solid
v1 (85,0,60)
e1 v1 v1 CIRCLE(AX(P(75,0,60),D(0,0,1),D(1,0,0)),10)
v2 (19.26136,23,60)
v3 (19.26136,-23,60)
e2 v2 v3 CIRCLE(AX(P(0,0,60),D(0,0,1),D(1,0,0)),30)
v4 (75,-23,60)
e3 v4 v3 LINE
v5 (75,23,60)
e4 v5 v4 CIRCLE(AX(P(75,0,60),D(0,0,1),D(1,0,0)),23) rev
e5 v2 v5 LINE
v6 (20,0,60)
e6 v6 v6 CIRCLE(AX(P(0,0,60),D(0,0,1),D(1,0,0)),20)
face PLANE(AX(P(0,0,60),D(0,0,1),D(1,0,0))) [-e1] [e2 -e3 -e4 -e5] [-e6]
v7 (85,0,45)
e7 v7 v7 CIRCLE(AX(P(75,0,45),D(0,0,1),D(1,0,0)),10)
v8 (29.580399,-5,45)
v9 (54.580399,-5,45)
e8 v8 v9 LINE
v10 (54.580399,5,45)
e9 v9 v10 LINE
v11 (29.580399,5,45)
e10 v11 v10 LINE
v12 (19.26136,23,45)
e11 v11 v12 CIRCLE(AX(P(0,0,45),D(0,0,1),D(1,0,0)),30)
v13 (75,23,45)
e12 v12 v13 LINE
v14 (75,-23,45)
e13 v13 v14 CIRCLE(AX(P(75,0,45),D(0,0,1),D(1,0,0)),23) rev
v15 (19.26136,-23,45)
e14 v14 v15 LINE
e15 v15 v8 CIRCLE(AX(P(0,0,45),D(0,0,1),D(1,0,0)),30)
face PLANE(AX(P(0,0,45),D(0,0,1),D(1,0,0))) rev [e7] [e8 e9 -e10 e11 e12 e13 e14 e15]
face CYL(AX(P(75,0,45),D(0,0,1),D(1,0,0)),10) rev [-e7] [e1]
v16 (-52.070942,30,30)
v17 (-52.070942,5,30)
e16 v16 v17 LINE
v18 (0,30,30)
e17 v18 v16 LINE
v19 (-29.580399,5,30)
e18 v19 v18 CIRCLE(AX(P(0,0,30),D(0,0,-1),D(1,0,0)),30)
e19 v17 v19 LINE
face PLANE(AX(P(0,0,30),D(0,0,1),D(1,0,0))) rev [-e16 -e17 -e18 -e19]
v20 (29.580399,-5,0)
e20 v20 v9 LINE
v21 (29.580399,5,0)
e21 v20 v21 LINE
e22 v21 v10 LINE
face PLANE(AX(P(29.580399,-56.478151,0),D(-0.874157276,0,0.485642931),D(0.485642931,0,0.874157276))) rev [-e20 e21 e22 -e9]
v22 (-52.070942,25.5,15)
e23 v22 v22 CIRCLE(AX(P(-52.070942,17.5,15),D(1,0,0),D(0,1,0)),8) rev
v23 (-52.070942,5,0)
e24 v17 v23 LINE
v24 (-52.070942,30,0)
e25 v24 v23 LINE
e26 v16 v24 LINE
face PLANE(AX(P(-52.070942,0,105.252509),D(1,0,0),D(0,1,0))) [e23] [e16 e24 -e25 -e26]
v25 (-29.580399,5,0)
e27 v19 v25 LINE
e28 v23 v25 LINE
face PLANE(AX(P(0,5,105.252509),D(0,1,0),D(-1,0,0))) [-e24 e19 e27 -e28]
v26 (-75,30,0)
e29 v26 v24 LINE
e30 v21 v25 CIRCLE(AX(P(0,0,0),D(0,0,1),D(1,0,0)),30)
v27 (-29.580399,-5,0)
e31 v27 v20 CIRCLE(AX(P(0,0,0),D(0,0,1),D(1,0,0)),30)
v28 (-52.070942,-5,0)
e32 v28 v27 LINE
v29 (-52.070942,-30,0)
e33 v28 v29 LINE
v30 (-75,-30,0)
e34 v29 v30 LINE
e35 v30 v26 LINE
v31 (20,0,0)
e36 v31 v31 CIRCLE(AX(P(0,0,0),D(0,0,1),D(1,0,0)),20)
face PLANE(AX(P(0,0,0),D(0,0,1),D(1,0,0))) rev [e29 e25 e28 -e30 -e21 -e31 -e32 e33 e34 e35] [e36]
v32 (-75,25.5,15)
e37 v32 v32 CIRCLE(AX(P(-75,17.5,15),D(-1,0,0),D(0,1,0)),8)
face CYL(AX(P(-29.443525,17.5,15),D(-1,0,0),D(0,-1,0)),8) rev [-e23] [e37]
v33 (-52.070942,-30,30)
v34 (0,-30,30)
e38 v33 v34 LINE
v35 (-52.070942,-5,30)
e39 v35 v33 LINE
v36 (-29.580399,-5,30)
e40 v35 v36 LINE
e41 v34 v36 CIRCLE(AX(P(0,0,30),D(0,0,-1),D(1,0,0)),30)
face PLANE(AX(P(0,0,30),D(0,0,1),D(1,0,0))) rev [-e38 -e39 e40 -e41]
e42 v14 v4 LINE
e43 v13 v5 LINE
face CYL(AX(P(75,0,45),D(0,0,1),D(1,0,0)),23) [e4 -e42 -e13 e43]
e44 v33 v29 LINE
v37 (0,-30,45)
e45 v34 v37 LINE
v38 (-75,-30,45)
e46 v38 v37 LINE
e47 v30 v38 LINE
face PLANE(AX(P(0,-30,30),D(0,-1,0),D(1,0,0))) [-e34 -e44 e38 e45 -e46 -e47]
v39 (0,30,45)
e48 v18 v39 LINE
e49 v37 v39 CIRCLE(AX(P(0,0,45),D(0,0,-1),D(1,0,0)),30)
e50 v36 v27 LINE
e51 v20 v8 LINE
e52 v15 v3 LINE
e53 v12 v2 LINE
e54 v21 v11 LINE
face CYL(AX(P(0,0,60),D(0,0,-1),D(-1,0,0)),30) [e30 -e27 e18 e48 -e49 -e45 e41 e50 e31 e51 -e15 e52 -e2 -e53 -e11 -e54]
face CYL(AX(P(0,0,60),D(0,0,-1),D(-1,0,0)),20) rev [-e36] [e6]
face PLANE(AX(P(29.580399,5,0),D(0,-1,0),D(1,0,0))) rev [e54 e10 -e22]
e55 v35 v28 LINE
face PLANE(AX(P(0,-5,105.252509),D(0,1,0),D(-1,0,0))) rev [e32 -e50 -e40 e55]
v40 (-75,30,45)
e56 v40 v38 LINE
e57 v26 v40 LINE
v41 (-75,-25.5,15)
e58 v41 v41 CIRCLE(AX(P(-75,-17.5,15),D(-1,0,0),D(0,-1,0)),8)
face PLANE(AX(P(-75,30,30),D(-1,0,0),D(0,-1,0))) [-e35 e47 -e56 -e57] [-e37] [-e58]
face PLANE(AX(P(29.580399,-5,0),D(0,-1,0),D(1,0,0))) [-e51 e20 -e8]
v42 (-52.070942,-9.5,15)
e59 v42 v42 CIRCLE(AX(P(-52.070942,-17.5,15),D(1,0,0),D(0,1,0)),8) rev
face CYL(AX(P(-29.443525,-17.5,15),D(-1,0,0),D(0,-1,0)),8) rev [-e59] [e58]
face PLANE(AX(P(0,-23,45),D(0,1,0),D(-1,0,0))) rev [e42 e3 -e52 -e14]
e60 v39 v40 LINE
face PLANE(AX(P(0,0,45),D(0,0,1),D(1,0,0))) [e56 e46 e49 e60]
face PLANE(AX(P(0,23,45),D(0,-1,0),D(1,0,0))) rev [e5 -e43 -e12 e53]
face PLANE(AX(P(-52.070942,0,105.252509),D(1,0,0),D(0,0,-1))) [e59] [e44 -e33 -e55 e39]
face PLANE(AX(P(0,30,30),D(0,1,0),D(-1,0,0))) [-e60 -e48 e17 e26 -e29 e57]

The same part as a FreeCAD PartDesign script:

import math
import FreeCAD as App
import Part
import Sketcher
Q = App.Units.Quantity


def add_polygon(sketch, points):
    """Adds a closed chain of lines whose ends are joined by coincident constraints."""
    first, n = sketch.GeometryCount, len(points)
    for a, b in zip(points, points[1:] + points[:1]):
        sketch.addGeometry(Part.LineSegment(App.Vector(*a, 0), App.Vector(*b, 0)), False)
    for i in range(n):
        sketch.addConstraint(Sketcher.Constraint("Coincident", first + i, 2, first + (i + 1) % n, 1))

doc = App.newDocument("Part")
params = doc.addObject("Spreadsheet::Sheet", "Params")
for row, (alias, value) in enumerate([
    ("sketch1_diameter", "60 mm"),
    ("sketch1_diameter2", "40 mm"),
    ("pad1_length", "60 mm"),
    ("sketch2_diameter", "20 mm"),
    ("sketch2_radius", "30 mm"),
    ("sketch2_radius2", "23 mm"),
    ("pad2_length", "15 mm"),
    ("sketch3_radius", "30 mm"),
    ("sketch3_width", "75 mm"),
    ("pad3_length", "15 mm"),
    ("sketch4_radius", "30 mm"),
    ("sketch4_height", "25 mm"),
    ("sketch4_height2", "60 mm"),
    ("pad4_length", "30 mm"),
    ("sketch5_diameter", "16 mm"),
    ("pocket1_length", "22.929058 mm"),
    ("sketch6_radius", "30 mm"),
    ("sketch6_width", "25 mm"),
    ("sketch6_height", "10 mm"),
    ("pad5_length", "45 mm"),
    ("sketch7_width", "25 mm"),
    ("sketch7_height", "45 mm"),
    ("pocket2_length", "10 mm"),
], start=1):
    params.set(f"A{row}", alias)
    params.set(f"B{row}", "=" + value)
    params.setAlias(f"B{row}", alias)

body = doc.addObject("PartDesign::Body", "Body")

# Sketch on XY plane
sketch1 = body.newObject("Sketcher::SketchObject", "Sketch")
sketch1.AttachmentSupport = (doc.getObject("XY_Plane"), [""])
sketch1.MapMode = "FlatFace"
sketch1.addGeometry([
    Part.Circle(App.Vector(0, 0, 0), App.Vector(0, 0, 1), 30),
    Part.Circle(App.Vector(0, 0, 0), App.Vector(0, 0, 1), 20),
], False)
sketch1.addConstraint([
    Sketcher.Constraint("Coincident", 0, 3, -1, 1),
    Sketcher.Constraint("Coincident", 1, 3, -1, 1),
    Sketcher.Constraint("Diameter", 0, Q("60 mm")),
    Sketcher.Constraint("Diameter", 1, Q("40 mm")),
])
sketch1.setExpression("Constraints[2]", "Params.sketch1_diameter")
sketch1.setExpression("Constraints[3]", "Params.sketch1_diameter2")
pad1 = body.newObject("PartDesign::Pad", "Pad")
pad1.Profile = sketch1
pad1.setExpression("Length", "Params.pad1_length")

# Sketch on XY plane
sketch2 = body.newObject("Sketcher::SketchObject", "Sketch001")
sketch2.AttachmentSupport = (doc.getObject("XY_Plane"), [""])
sketch2.MapMode = "FlatFace"
sketch2.AttachmentOffset = App.Placement(App.Vector(0, 0, 45), App.Rotation())
sketch2.addGeometry([
    Part.LineSegment(App.Vector(75, 23, 0), App.Vector(19.26136, 23, 0)),  # 0
    Part.ArcOfCircle(Part.Circle(App.Vector(0, 0, 0), App.Vector(0, 0, 1), 30), math.radians(0), math.radians(50.055495)),  # 1
    Part.ArcOfCircle(Part.Circle(App.Vector(0, 0, 0), App.Vector(0, 0, 1), 30), math.radians(-50.055495), math.radians(0)),  # 2
    Part.LineSegment(App.Vector(19.26136, -23, 0), App.Vector(75, -23, 0)),  # 3
    Part.ArcOfCircle(Part.Circle(App.Vector(75, 0, 0), App.Vector(0, 0, 1), 23), math.radians(-90), math.radians(90)),  # 4
    Part.Circle(App.Vector(75, 0, 0), App.Vector(0, 0, 1), 10),  # 5
], False)
sketch2.addConstraint([
    Sketcher.Constraint("Coincident", 0, 2, 1, 2),
    Sketcher.Constraint("Tangent", 1, 1, 2, 2),
    Sketcher.Constraint("Coincident", 2, 1, 3, 1),
    Sketcher.Constraint("Tangent", 3, 2, 4, 1),
    Sketcher.Constraint("Tangent", 4, 2, 0, 1),
    Sketcher.Constraint("Horizontal", 0),
    Sketcher.Constraint("Horizontal", 3),
    Sketcher.Constraint("Coincident", 1, 3, -1, 1),
    Sketcher.Constraint("Coincident", 5, 3, 4, 3),
    Sketcher.Constraint("Equal", 1, 2),
    Sketcher.Constraint("PointOnObject", 4, 3, -1),
    Sketcher.Constraint("PointOnObject", 1, 1, -1),
    Sketcher.Constraint("Diameter", 5, Q("20 mm")),
    Sketcher.Constraint("Radius", 1, Q("30 mm")),
    Sketcher.Constraint("Radius", 4, Q("23 mm")),
    Sketcher.Constraint("DistanceX", -1, 1, 4, 3, Q("75 mm")),
])
sketch2.setExpression("Constraints[12]", "Params.sketch2_diameter")
sketch2.setExpression("Constraints[13]", "Params.sketch2_radius")
sketch2.setExpression("Constraints[14]", "Params.sketch2_radius2")
pad2 = body.newObject("PartDesign::Pad", "Pad001")
pad2.Profile = sketch2
pad2.setExpression("Length", "Params.pad2_length")

# Sketch on XY plane
sketch3 = body.newObject("Sketcher::SketchObject", "Sketch002")
sketch3.AttachmentSupport = (doc.getObject("XY_Plane"), [""])
sketch3.MapMode = "FlatFace"
sketch3.AttachmentOffset = App.Placement(App.Vector(0, 0, 30), App.Rotation())
sketch3.addGeometry([
    Part.LineSegment(App.Vector(-75, -30, 0), App.Vector(0, -30, 0)),
    Part.ArcOfCircle(Part.Circle(App.Vector(0, 0, 0), App.Vector(0, 0, 1), 30), math.radians(90), math.radians(270)),
    Part.LineSegment(App.Vector(0, 30, 0), App.Vector(-75, 30, 0)),
    Part.LineSegment(App.Vector(-75, 30, 0), App.Vector(-75, -30, 0)),
], False)
sketch3.addConstraint([
    Sketcher.Constraint("Tangent", 0, 2, 1, 2),
    Sketcher.Constraint("Tangent", 1, 1, 2, 1),
    Sketcher.Constraint("Coincident", 2, 2, 3, 1),
    Sketcher.Constraint("Coincident", 3, 2, 0, 1),
    Sketcher.Constraint("Horizontal", 0),
    Sketcher.Constraint("Horizontal", 2),
    Sketcher.Constraint("Vertical", 3),
    Sketcher.Constraint("Coincident", 1, 3, -1, 1),
    Sketcher.Constraint("Radius", 1, Q("30 mm")),
    Sketcher.Constraint("DistanceX", 0, 1, 0, 2, Q("75 mm")),
])
sketch3.setExpression("Constraints[8]", "Params.sketch3_radius")
sketch3.setExpression("Constraints[9]", "Params.sketch3_width")
pad3 = body.newObject("PartDesign::Pad", "Pad002")
pad3.Profile = sketch3
pad3.setExpression("Length", "Params.pad3_length")

# Sketch on XY plane
sketch4 = body.newObject("Sketcher::SketchObject", "Sketch003")
sketch4.AttachmentSupport = (doc.getObject("XY_Plane"), [""])
sketch4.MapMode = "FlatFace"
sketch4.addGeometry([
    Part.LineSegment(App.Vector(-75, 30, 0), App.Vector(-52.070942, 30, 0)),  # 0
    Part.LineSegment(App.Vector(-52.070942, 30, 0), App.Vector(-52.070942, 5, 0)),  # 1
    Part.LineSegment(App.Vector(-52.070942, 5, 0), App.Vector(-29.580399, 5, 0)),  # 2
    Part.ArcOfCircle(Part.Circle(App.Vector(0, 0, 0), App.Vector(0, 0, 1), 30), math.radians(170.405932), math.radians(180)),  # 3
    Part.ArcOfCircle(Part.Circle(App.Vector(0, 0, 0), App.Vector(0, 0, 1), 30), math.radians(180), math.radians(189.594068)),  # 4
    Part.LineSegment(App.Vector(-29.580399, -5, 0), App.Vector(-52.070942, -5, 0)),  # 5
    Part.LineSegment(App.Vector(-52.070942, -5, 0), App.Vector(-52.070942, -30, 0)),  # 6
    Part.LineSegment(App.Vector(-52.070942, -30, 0), App.Vector(-75, -30, 0)),  # 7
    Part.LineSegment(App.Vector(-75, -30, 0), App.Vector(-75, 30, 0)),  # 8
], False)
sketch4.addConstraint([
    Sketcher.Constraint("Coincident", 0, 2, 1, 1),
    Sketcher.Constraint("Coincident", 1, 2, 2, 1),
    Sketcher.Constraint("Coincident", 2, 2, 3, 1),
    Sketcher.Constraint("Tangent", 3, 2, 4, 1),
    Sketcher.Constraint("Coincident", 4, 2, 5, 1),
    Sketcher.Constraint("Coincident", 5, 2, 6, 1),
    Sketcher.Constraint("Coincident", 6, 2, 7, 1),
    Sketcher.Constraint("Coincident", 7, 2, 8, 1),
    Sketcher.Constraint("Coincident", 8, 2, 0, 1),
    Sketcher.Constraint("Horizontal", 0),
    Sketcher.Constraint("Vertical", 1),
    Sketcher.Constraint("Horizontal", 2),
    Sketcher.Constraint("Horizontal", 5),
    Sketcher.Constraint("Vertical", 6),
    Sketcher.Constraint("Horizontal", 7),
    Sketcher.Constraint("Vertical", 8),
    Sketcher.Constraint("Coincident", 3, 3, -1, 1),
    Sketcher.Constraint("Equal", 3, 4),
    Sketcher.Constraint("Symmetric", 1, 2, 5, 2, -1),
    Sketcher.Constraint("PointOnObject", 3, 2, -1),
    Sketcher.Constraint("Equal", 1, 6),
    Sketcher.Constraint("Radius", 3, Q("30 mm")),
    Sketcher.Constraint("DistanceY", 1, 2, 1, 1, Q("25 mm")),
    Sketcher.Constraint("DistanceY", 8, 1, 8, 2, Q("60 mm")),
    Sketcher.Constraint("DistanceX", 7, 2, -1, 1, Q("75 mm")),
    Sketcher.Constraint("DistanceX", 0, 1, 0, 2, Q("22.929058 mm")),
])
sketch4.setExpression("Constraints[21]", "Params.sketch4_radius")
sketch4.setExpression("Constraints[22]", "Params.sketch4_height")
sketch4.setExpression("Constraints[23]", "Params.sketch4_height2")
pad4 = body.newObject("PartDesign::Pad", "Pad003")
pad4.Profile = sketch4
pad4.setExpression("Length", "Params.pad4_length")

# Sketch on YZ plane
sketch5 = body.newObject("Sketcher::SketchObject", "Sketch004")
sketch5.AttachmentSupport = (doc.getObject("YZ_Plane"), [""])
sketch5.MapMode = "FlatFace"
sketch5.AttachmentOffset = App.Placement(App.Vector(0, 0, -75), App.Rotation())
sketch5.addGeometry([
    Part.Circle(App.Vector(-17.5, 15, 0), App.Vector(0, 0, 1), 8),
    Part.Circle(App.Vector(17.5, 15, 0), App.Vector(0, 0, 1), 8),
], False)
sketch5.addConstraint([
    Sketcher.Constraint("Equal", 0, 1),
    Sketcher.Constraint("Symmetric", 0, 3, 1, 3, -2),
    Sketcher.Constraint("Diameter", 0, Q("16 mm")),
    Sketcher.Constraint("DistanceY", -1, 1, 0, 3, Q("15 mm")),
    Sketcher.Constraint("DistanceX", 0, 3, 1, 3, Q("35 mm")),
])
sketch5.setExpression("Constraints[2]", "Params.sketch5_diameter")
pocket1 = body.newObject("PartDesign::Pocket", "Pocket")
pocket1.Profile = sketch5
pocket1.setExpression("Length", "Params.pocket1_length")
pocket1.Reversed = True

# Sketch on XY plane
sketch6 = body.newObject("Sketcher::SketchObject", "Sketch005")
sketch6.AttachmentSupport = (doc.getObject("XY_Plane"), [""])
sketch6.MapMode = "FlatFace"
sketch6.addGeometry([
    Part.LineSegment(App.Vector(29.580399, 5, 0), App.Vector(54.580399, 5, 0)),
    Part.LineSegment(App.Vector(54.580399, 5, 0), App.Vector(54.580399, -5, 0)),
    Part.LineSegment(App.Vector(54.580399, -5, 0), App.Vector(29.580399, -5, 0)),
    Part.ArcOfCircle(Part.Circle(App.Vector(0, 0, 0), App.Vector(0, 0, 1), 30), math.radians(-9.594068), math.radians(9.594068)),
], False)
sketch6.addConstraint([
    Sketcher.Constraint("Coincident", 0, 2, 1, 1),
    Sketcher.Constraint("Coincident", 1, 2, 2, 1),
    Sketcher.Constraint("Coincident", 2, 2, 3, 1),
    Sketcher.Constraint("Coincident", 3, 2, 0, 1),
    Sketcher.Constraint("Horizontal", 0),
    Sketcher.Constraint("Vertical", 1),
    Sketcher.Constraint("Horizontal", 2),
    Sketcher.Constraint("Coincident", 3, 3, -1, 1),
    Sketcher.Constraint("Vertical", 2, 2, 3, 2),
    Sketcher.Constraint("Radius", 3, Q("30 mm")),
    Sketcher.Constraint("DistanceX", 0, 1, 0, 2, Q("25 mm")),
    Sketcher.Constraint("DistanceY", 1, 2, 1, 1, Q("10 mm")),
])
sketch6.setExpression("Constraints[9]", "Params.sketch6_radius")
sketch6.setExpression("Constraints[10]", "Params.sketch6_width")
sketch6.setExpression("Constraints[11]", "Params.sketch6_height")
pad5 = body.newObject("PartDesign::Pad", "Pad004")
pad5.Profile = sketch6
pad5.setExpression("Length", "Params.pad5_length")

# Sketch on XZ plane
sketch7 = body.newObject("Sketcher::SketchObject", "Sketch006")
sketch7.AttachmentSupport = (doc.getObject("XZ_Plane"), [""])
sketch7.MapMode = "FlatFace"
sketch7.AttachmentOffset = App.Placement(App.Vector(0, 0, -5), App.Rotation())
add_polygon(sketch7, [(29.580399, 0), (54.580399, 45), (54.580399, 0)])  # lines 0-2
sketch7.addConstraint([
    Sketcher.Constraint("Vertical", 1),
    Sketcher.Constraint("Horizontal", 2),
    Sketcher.Constraint("PointOnObject", 1, 2, -1),
    Sketcher.Constraint("DistanceX", 2, 2, 2, 1, Q("25 mm")),
    Sketcher.Constraint("DistanceY", 1, 2, 1, 1, Q("45 mm")),
    Sketcher.Constraint("DistanceX", -1, 1, 0, 2, Q("54.580399 mm")),
])
sketch7.setExpression("Constraints[6]", "Params.sketch7_width")
sketch7.setExpression("Constraints[7]", "Params.sketch7_height")
pocket2 = body.newObject("PartDesign::Pocket", "Pocket001")
pocket2.Profile = sketch7
pocket2.setExpression("Length", "Params.pocket2_length")
pocket2.Reversed = True

doc.recompute()
